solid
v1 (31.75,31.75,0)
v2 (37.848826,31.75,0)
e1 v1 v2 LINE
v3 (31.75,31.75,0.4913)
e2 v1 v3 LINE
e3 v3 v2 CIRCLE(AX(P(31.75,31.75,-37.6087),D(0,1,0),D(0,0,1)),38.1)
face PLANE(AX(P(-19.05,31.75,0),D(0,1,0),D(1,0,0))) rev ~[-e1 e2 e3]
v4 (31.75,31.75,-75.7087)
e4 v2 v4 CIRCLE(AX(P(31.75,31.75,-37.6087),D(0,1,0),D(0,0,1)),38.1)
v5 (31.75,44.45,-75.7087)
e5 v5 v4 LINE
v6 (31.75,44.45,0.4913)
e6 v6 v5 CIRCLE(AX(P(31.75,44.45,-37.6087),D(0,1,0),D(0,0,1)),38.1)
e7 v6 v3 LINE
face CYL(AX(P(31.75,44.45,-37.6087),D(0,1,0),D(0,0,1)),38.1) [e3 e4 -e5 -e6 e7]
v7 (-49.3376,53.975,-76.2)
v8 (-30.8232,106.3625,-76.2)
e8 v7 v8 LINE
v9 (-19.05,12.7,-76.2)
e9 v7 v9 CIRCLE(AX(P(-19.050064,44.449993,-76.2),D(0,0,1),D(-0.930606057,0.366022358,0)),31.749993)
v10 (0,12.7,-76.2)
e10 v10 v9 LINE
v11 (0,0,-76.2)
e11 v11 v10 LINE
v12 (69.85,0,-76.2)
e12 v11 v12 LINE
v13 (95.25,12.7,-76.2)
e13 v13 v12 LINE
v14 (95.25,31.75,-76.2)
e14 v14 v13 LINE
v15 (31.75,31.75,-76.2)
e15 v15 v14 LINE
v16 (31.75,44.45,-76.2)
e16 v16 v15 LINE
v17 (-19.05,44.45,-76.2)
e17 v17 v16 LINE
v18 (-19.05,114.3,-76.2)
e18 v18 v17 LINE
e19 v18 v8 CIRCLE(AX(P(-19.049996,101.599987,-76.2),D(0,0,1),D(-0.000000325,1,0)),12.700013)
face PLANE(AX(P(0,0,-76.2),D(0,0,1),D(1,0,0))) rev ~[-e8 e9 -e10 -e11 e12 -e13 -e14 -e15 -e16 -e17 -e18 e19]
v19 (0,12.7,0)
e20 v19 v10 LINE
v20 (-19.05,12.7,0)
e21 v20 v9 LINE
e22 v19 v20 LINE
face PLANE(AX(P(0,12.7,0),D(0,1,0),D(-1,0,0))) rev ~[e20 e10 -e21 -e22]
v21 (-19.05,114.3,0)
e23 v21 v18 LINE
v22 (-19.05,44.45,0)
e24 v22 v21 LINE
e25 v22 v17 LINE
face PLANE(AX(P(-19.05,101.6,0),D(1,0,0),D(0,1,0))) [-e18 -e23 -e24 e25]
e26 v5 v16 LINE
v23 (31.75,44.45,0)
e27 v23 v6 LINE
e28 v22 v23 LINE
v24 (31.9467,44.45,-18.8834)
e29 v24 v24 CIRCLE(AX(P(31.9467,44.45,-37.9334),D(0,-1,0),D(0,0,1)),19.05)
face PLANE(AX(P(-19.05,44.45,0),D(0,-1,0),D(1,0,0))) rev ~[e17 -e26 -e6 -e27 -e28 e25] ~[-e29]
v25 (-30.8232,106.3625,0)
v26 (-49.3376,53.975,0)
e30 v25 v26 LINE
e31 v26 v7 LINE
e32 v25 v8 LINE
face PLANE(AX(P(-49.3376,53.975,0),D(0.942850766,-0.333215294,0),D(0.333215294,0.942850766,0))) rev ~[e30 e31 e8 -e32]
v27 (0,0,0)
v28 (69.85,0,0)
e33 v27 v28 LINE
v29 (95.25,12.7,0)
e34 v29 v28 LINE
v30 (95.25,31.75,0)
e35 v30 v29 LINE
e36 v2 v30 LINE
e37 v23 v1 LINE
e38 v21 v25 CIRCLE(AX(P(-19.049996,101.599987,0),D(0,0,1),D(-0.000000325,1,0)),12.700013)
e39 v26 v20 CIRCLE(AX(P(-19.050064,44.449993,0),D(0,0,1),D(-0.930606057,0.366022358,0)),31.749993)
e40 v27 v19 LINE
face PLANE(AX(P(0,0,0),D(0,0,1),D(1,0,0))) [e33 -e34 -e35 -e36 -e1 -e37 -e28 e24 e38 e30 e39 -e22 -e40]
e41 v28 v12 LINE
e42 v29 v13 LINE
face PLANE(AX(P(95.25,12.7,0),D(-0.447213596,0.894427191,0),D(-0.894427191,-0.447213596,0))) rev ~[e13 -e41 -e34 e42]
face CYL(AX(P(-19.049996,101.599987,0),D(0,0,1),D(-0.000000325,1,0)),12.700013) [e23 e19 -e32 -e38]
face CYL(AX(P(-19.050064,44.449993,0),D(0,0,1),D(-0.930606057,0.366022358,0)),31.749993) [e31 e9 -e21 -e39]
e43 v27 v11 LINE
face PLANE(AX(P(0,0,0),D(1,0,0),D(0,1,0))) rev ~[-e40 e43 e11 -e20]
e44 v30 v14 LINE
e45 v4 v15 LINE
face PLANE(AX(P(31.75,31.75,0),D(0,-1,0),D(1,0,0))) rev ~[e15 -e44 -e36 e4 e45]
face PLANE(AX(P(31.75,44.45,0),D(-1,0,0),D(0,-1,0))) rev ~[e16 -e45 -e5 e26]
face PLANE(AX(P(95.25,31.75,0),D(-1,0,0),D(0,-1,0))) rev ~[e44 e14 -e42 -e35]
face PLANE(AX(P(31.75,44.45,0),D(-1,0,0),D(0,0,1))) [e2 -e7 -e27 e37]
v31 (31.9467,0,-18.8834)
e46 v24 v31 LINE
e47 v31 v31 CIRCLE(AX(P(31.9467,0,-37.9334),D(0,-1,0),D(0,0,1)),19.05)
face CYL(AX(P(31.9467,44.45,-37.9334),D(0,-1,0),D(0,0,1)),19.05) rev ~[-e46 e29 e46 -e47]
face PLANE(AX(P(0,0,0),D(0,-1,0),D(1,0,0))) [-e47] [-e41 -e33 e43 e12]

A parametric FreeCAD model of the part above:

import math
import FreeCAD as App
import Part
import Sketcher
from FreeCAD import Vector
Q = App.Units.Quantity

doc = App.newDocument("Part")
body = doc.addObject("PartDesign::Body", "Body")

sketch1 = doc.addObject("Sketcher::SketchObject", "Sketch")
body.addObject(sketch1)
sketch1.AttachmentSupport = (doc.XY_Plane, [""])
sketch1.MapMode = "FlatFace"
sketch1.addGeometry([
    Part.LineSegment(Vector(0, 12.7, 0), Vector(0, 0, 0)),
    Part.LineSegment(Vector(0, 0, 0), Vector(69.85, 0, 0)),
    Part.LineSegment(Vector(69.85, 0, 0), Vector(95.25, 12.7, 0)),
    Part.LineSegment(Vector(95.25, 12.7, 0), Vector(95.25, 31.75, 0)),
    Part.LineSegment(Vector(95.25, 31.75, 0), Vector(31.75, 31.75, 0)),
    Part.LineSegment(Vector(31.75, 31.75, 0), Vector(31.75, 44.45, 0)),
    Part.LineSegment(Vector(31.75, 44.45, 0), Vector(-19.05, 44.45, 0)),
    Part.LineSegment(Vector(-19.05, 44.45, 0), Vector(-19.05, 114.3, 0)),
    Part.ArcOfCircle(Part.Circle(Vector(-19.05, 101.6, 0), Vector(0, 0, 1), 12.7), math.radians(90), math.radians(157.975662)),
    Part.LineSegment(Vector(-30.8232, 106.3625, 0), Vector(-49.3376, 53.975, 0)),
    Part.ArcOfCircle(Part.Circle(Vector(-19.05, 44.45, 0), Vector(0, 0, 1), 31.75005), math.radians(162.542413), math.radians(270)),
    Part.LineSegment(Vector(-19.05, 12.7, 0), Vector(0, 12.7, 0)),
], False)
sketch1.addConstraint([
    Sketcher.Constraint("Coincident", 0, 2, 1, 1),
    Sketcher.Constraint("Coincident", 1, 2, 2, 1),
    Sketcher.Constraint("Coincident", 2, 2, 3, 1),
    Sketcher.Constraint("Coincident", 3, 2, 4, 1),
    Sketcher.Constraint("Coincident", 4, 2, 5, 1),
    Sketcher.Constraint("Coincident", 5, 2, 6, 1),
    Sketcher.Constraint("Coincident", 6, 2, 7, 1),
    Sketcher.Constraint("Coincident", 7, 2, 8, 1),
    Sketcher.Constraint("Coincident", 8, 2, 9, 1),
    Sketcher.Constraint("Coincident", 9, 2, 10, 1),
    Sketcher.Constraint("Tangent", 10, 2, 11, 1),
    Sketcher.Constraint("Coincident", 11, 2, 0, 1),
    Sketcher.Constraint("Vertical", 0),
    Sketcher.Constraint("Horizontal", 1),
    Sketcher.Constraint("Vertical", 3),
    Sketcher.Constraint("Horizontal", 4),
    Sketcher.Constraint("Vertical", 5),
    Sketcher.Constraint("Horizontal", 6),
    Sketcher.Constraint("Vertical", 7),
    Sketcher.Constraint("Horizontal", 11),
    Sketcher.Constraint("Coincident", 0, 2, -1, 1),
    Sketcher.Constraint("Coincident", 6, 2, 10, 3),
    Sketcher.Constraint("Horizontal", 2, 2, 10, 2),
    Sketcher.Constraint("Vertical", 8, 3, 10, 3),
    Sketcher.Constraint("Equal", 11, 3),
    Sketcher.Constraint("Equal", 0, 5),
    Sketcher.Constraint("Equal", 1, 7),
    Sketcher.Constraint("Radius", 8, Q("0.5 in")),
    Sketcher.Constraint("DistanceX", 6, 2, 6, 1, Q("2 in")),
    Sketcher.Constraint("DistanceY", 0, 2, 0, 1, Q("0.5 in")),
    Sketcher.Constraint("DistanceX", 1, 2, 2, 2, Q("1 in")),
    Sketcher.Constraint("DistanceX", 1, 1, 1, 2, Q("2.75 in")),
    Sketcher.Constraint("DistanceX", 11, 1, 11, 2, Q("0.75 in")),
    Sketcher.Constraint("DistanceY", -1, 1, 8, 2, Q("4.1875 in")),
    Sketcher.Constraint("DistanceY", -1, 1, 9, 2, Q("2.125 in")),
])
pad1 = doc.addObject("PartDesign::Pad", "Pad")
body.addObject(pad1)
pad1.Profile = sketch1
pad1.Length = Q("3 in")
pad1.Reversed = True

sketch2 = doc.addObject("Sketcher::SketchObject", "Sketch001")
body.addObject(sketch2)
sketch2.AttachmentSupport = (doc.XZ_Plane, [""])
sketch2.MapMode = "FlatFace"
sketch2.AttachmentOffset = App.Placement(Vector(0, 0, -1.75 * 25.4), App.Rotation())
sketch2.addGeometry([
    Part.LineSegment(Vector(31.75, -75.7087, 0), Vector(31.75, 0.4913, 0)),
    Part.ArcOfCircle(Part.Circle(Vector(31.75, -37.6087, 0), Vector(0, 0, 1), 38.1), math.radians(-90), math.radians(90)),
], False)
sketch2.addConstraint([
    Sketcher.Constraint("Coincident", 0, 1, 1, 1),
    Sketcher.Constraint("Coincident", 1, 2, 0, 2),
    Sketcher.Constraint("Vertical", 0),
    Sketcher.Constraint("Vertical", 1, 3, 0, 1),
    Sketcher.Constraint("Radius", 1, Q("1.5 in")),
    Sketcher.Constraint("DistanceX", -1, 1, 1, 3, Q("1.25 in")),
    Sketcher.Constraint("DistanceY", 1, 3, -1, 1, 37.6087),
])
pad2 = doc.addObject("PartDesign::Pad", "Pad001")
body.addObject(pad2)
pad2.Profile = sketch2
pad2.Length = Q("0.5 in")

sketch3 = doc.addObject("Sketcher::SketchObject", "Sketch002")
body.addObject(sketch3)
sketch3.AttachmentSupport = (doc.XZ_Plane, [""])
sketch3.MapMode = "FlatFace"
sketch3.AttachmentOffset = App.Placement(Vector(0, 0, -1.75 * 25.4), App.Rotation())
sketch3.addGeometry(Part.Circle(Vector(31.9467, -37.9334, 0), Vector(0, 0, 1), 19.05), False)
sketch3.addConstraint([
    Sketcher.Constraint("Diameter", 0, Q("1.5 in")),
    Sketcher.Constraint("DistanceX", -1, 1, 0, 3, 31.9467),
    Sketcher.Constraint("DistanceY", 0, 3, -1, 1, 37.9334),
])
doc.recompute()
hole = doc.addObject("PartDesign::Hole", "Hole")
body.addObject(hole)
hole.Profile = sketch3
hole.ThreadType = "None"
hole.Diameter = Q("1.5 in")
hole.DepthType = "ThroughAll"
hole.Reversed = True

doc.recompute()
